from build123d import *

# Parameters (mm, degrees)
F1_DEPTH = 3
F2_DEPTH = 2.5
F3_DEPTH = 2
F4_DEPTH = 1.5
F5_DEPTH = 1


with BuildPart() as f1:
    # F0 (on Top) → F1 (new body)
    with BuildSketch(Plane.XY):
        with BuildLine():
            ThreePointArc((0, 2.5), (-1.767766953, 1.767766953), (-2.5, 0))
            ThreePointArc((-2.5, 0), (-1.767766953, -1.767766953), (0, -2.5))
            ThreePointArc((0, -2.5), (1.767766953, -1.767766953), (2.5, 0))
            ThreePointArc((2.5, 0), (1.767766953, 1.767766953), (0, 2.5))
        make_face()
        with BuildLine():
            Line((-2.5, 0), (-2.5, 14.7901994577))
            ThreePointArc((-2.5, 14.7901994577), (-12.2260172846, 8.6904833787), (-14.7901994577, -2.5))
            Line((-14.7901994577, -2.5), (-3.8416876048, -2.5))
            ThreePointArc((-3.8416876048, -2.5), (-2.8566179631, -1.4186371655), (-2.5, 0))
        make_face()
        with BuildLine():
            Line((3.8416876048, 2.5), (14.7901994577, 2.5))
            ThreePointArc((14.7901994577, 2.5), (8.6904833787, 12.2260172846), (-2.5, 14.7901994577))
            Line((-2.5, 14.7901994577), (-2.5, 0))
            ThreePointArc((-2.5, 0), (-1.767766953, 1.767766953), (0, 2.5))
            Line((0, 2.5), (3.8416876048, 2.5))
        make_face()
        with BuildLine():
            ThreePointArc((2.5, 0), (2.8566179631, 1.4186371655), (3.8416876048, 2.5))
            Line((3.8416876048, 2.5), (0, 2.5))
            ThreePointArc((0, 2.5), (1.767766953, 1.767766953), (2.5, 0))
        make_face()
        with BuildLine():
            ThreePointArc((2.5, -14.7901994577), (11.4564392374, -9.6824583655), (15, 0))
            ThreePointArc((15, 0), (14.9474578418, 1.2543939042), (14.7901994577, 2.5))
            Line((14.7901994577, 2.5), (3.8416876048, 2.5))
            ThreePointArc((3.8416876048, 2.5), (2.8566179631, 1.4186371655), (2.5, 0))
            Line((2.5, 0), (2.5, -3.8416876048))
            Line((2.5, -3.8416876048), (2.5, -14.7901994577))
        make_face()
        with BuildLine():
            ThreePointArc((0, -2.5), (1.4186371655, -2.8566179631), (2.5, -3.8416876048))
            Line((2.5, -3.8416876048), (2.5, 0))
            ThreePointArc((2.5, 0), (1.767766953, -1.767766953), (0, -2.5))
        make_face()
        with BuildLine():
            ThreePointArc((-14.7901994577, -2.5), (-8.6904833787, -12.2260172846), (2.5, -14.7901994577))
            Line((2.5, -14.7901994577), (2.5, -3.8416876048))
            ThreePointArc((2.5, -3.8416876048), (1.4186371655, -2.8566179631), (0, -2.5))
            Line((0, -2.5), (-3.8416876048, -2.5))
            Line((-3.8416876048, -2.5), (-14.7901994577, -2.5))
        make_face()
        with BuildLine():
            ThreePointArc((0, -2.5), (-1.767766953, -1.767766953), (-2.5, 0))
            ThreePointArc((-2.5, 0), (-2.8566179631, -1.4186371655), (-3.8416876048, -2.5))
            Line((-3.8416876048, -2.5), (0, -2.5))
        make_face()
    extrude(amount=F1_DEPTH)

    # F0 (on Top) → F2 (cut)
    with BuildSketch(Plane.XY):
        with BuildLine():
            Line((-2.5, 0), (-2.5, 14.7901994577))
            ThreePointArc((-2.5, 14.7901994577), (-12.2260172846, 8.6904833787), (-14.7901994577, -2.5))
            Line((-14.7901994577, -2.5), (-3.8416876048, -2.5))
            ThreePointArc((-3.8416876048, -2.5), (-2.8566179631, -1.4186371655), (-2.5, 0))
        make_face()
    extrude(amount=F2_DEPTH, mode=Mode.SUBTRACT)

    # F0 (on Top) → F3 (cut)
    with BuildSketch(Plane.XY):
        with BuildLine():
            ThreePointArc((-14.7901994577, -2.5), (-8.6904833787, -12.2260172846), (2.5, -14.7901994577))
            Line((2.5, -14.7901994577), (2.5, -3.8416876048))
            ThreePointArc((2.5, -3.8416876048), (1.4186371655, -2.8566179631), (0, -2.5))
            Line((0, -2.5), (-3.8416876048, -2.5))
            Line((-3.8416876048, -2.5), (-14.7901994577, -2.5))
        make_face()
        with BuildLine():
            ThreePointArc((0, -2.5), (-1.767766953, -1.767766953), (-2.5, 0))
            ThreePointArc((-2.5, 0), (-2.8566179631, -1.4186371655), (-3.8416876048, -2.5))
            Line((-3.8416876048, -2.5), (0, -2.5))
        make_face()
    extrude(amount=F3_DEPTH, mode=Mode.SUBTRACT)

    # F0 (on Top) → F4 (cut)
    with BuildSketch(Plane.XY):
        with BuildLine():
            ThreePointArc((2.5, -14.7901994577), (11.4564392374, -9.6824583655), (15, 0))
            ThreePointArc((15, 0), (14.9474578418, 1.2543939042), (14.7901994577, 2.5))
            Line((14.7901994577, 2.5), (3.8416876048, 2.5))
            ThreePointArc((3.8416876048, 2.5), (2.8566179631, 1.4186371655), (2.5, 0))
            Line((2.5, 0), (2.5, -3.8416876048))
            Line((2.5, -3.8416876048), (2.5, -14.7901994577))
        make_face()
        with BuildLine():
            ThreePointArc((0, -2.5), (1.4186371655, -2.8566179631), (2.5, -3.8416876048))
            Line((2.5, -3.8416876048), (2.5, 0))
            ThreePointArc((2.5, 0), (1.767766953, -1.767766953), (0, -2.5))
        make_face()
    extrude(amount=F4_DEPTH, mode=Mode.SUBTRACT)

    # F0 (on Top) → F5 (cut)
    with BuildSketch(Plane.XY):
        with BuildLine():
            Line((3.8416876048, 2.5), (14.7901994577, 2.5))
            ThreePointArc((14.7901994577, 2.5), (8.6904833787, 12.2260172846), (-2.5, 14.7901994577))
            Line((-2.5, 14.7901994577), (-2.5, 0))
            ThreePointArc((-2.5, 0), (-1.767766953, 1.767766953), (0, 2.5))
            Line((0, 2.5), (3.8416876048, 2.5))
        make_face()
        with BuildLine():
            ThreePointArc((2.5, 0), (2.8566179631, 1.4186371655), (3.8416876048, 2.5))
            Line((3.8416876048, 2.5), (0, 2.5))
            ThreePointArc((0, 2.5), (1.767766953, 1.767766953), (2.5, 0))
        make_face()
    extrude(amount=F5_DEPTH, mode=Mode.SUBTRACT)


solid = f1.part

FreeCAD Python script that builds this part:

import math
import FreeCAD as App
import Part
import Sketcher

doc = App.newDocument("Part")
body = doc.addObject("PartDesign::Body", "Body")

# Sketch on XY plane
sketch1 = doc.addObject("Sketcher::SketchObject", "Sketch")
body.addObject(sketch1)
sketch1.AttachmentSupport = (doc.XY_Plane, [""])
sketch1.MapMode = "FlatFace"
sketch1.addGeometry(Part.ArcOfCircle(Part.Circle(App.Vector(0, 0, 0), App.Vector(0, 0, 1), 15), math.radians(-80), math.radians(0)), False)
sketch1.addGeometry(Part.ArcOfCircle(Part.Circle(App.Vector(0, 0, 0), App.Vector(0, 0, 1), 15), math.radians(0), math.radians(9.59)), False)
sketch1.addGeometry(Part.ArcOfCircle(Part.Circle(App.Vector(0, 0, 0), App.Vector(0, 0, 1), 15), math.radians(10), math.radians(100)), False)
sketch1.addGeometry(Part.ArcOfCircle(Part.Circle(App.Vector(0, 0, 0), App.Vector(0, 0, 1), 15), math.radians(100), math.radians(190)), False)
sketch1.addGeometry(Part.ArcOfCircle(Part.Circle(App.Vector(0, 0, 0), App.Vector(0, 0, 1), 15), math.radians(-170), math.radians(-80)), False)
sketch1.addConstraint(Sketcher.Constraint("Tangent", 0, 2, 1, 1))
sketch1.addConstraint(Sketcher.Constraint("Tangent", 1, 2, 2, 1))
sketch1.addConstraint(Sketcher.Constraint("Tangent", 2, 2, 3, 1))
sketch1.addConstraint(Sketcher.Constraint("Tangent", 3, 2, 4, 1))
sketch1.addConstraint(Sketcher.Constraint("Tangent", 4, 2, 0, 1))
sketch1.addConstraint(Sketcher.Constraint("Coincident", 0, 3, -1, 1))
sketch1.addConstraint(Sketcher.Constraint("Coincident", 2, 3, -1, 1))
sketch1.addConstraint(Sketcher.Constraint("PointOnObject", 0, 2, -1))
sketch1.addConstraint(Sketcher.Constraint("Radius", 0, 15.0))
sketch1.addConstraint(Sketcher.Constraint("DistanceY", -1, 1, 1, 2, 2.5))
sketch1.addConstraint(Sketcher.Constraint("DistanceX", 2, 2, -1, 1, 2.5))
sketch1.addConstraint(Sketcher.Constraint("DistanceY", 3, 2, -1, 1, 2.5))
sketch1.addConstraint(Sketcher.Constraint("DistanceX", -1, 1, 4, 2, 2.5))
pad1 = doc.addObject("PartDesign::Pad", "Pad")
body.addObject(pad1)
pad1.Profile = sketch1
pad1.Length = 3

# Sketch on XY plane
sketch2 = doc.addObject("Sketcher::SketchObject", "Sketch001")
body.addObject(sketch2)
sketch2.AttachmentSupport = (doc.XY_Plane, [""])
sketch2.MapMode = "FlatFace"
sketch2.addGeometry(Part.LineSegment(App.Vector(-2.5, 0, 0), App.Vector(-2.5, 14.8, 0)), False)
sketch2.addGeometry(Part.ArcOfCircle(Part.Circle(App.Vector(0, 0, 0), App.Vector(0, 0, 1), 15), math.radians(100), math.radians(190)), False)
sketch2.addGeometry(Part.LineSegment(App.Vector(-14.8, -2.5, 0), App.Vector(-3.8, -2.5, 0)), False)
sketch2.addGeometry(Part.ArcOfCircle(Part.Circle(App.Vector(-5.5, 0, 0), App.Vector(0, 0, 1), 3), math.radians(-56), math.radians(0)), False)
sketch2.addConstraint(Sketcher.Constraint("Coincident", 0, 2, 1, 1))
sketch2.addConstraint(Sketcher.Constraint("Coincident", 1, 2, 2, 1))
sketch2.addConstraint(Sketcher.Constraint("Coincident", 2, 2, 3, 1))
sketch2.addConstraint(Sketcher.Constraint("Tangent", 3, 2, 0, 1))
sketch2.addConstraint(Sketcher.Constraint("Vertical", 0))
sketch2.addConstraint(Sketcher.Constraint("Horizontal", 2))
sketch2.addConstraint(Sketcher.Constraint("Coincident", 1, 3, -1, 1))
sketch2.addConstraint(Sketcher.Constraint("PointOnObject", 3, 3, -1))
sketch2.addConstraint(Sketcher.Constraint("Radius", 1, 15.0))
sketch2.addConstraint(Sketcher.Constraint("Radius", 3, 3.0))
sketch2.addConstraint(Sketcher.Constraint("DistanceX", 3, 3, -1, 1, 5.5))
sketch2.addConstraint(Sketcher.Constraint("DistanceY", 1, 2, -1, 1, 2.5))
pocket1 = doc.addObject("PartDesign::Pocket", "Pocket")
body.addObject(pocket1)
pocket1.Profile = sketch2
pocket1.Length = 2.5
pocket1.Reversed = True

# Sketch on XY plane
sketch3 = doc.addObject("Sketcher::SketchObject", "Sketch002")
body.addObject(sketch3)
sketch3.AttachmentSupport = (doc.XY_Plane, [""])
sketch3.MapMode = "FlatFace"
sketch3.addGeometry(Part.ArcOfCircle(Part.Circle(App.Vector(0, 0, 0), App.Vector(0, 0, 1), 15), math.radians(-170), math.radians(-80)), False)
sketch3.addGeometry(Part.LineSegment(App.Vector(2.5, -14.8, 0), App.Vector(2.5, -3.8, 0)), False)
sketch3.addGeometry(Part.ArcOfCircle(Part.Circle(App.Vector(0, -5.5, 0), App.Vector(0, 0, 1), 3), math.radians(34), math.radians(90)), False)
sketch3.addGeometry(Part.ArcOfCircle(Part.Circle(App.Vector(0, 0, 0), App.Vector(0, 0, 1), 2.5), math.radians(180), math.radians(270)), False)
sketch3.addGeometry(Part.ArcOfCircle(Part.Circle(App.Vector(-5.5, 0, 0), App.Vector(0, 0, 1), 3), math.radians(-56), math.radians(0)), False)
sketch3.addGeometry(Part.LineSegment(App.Vector(-3.8, -2.5, 0), App.Vector(-14.8, -2.5, 0)), False)
sketch3.addConstraint(Sketcher.Constraint("Coincident", 0, 2, 1, 1))
sketch3.addConstraint(Sketcher.Constraint("Coincident", 1, 2, 2, 1))
sketch3.addConstraint(Sketcher.Constraint("Tangent", 2, 2, 3, 2))
sketch3.addConstraint(Sketcher.Constraint("Tangent", 3, 1, 4, 2))
sketch3.addConstraint(Sketcher.Constraint("Coincident", 4, 1, 5, 1))
sketch3.addConstraint(Sketcher.Constraint("Coincident", 5, 2, 0, 1))
sketch3.addConstraint(Sketcher.Constraint("Vertical", 1))
sketch3.addConstraint(Sketcher.Constraint("Horizontal", 5))
sketch3.addConstraint(Sketcher.Constraint("Coincident", 0, 3, -1, 1))
sketch3.addConstraint(Sketcher.Constraint("Coincident", 3, 3, -1, 1))
sketch3.addConstraint(Sketcher.Constraint("Equal", 2, 4))
sketch3.addConstraint(Sketcher.Constraint("PointOnObject", 2, 3, -2))
sketch3.addConstraint(Sketcher.Constraint("PointOnObject", 4, 3, -1))
sketch3.addConstraint(Sketcher.Constraint("Horizontal", 2, 2, 4, 1))
sketch3.addConstraint(Sketcher.Constraint("Equal", 5, 1))
sketch3.addConstraint(Sketcher.Constraint("Radius", 0, 15.0))
sketch3.addConstraint(Sketcher.Constraint("Radius", 2, 3.0))
sketch3.addConstraint(Sketcher.Constraint("Radius", 3, 2.5))
pocket2 = doc.addObject("PartDesign::Pocket", "Pocket001")
body.addObject(pocket2)
pocket2.Profile = sketch3
pocket2.Length = 2
pocket2.Reversed = True

# Sketch on XY plane
sketch4 = doc.addObject("Sketcher::SketchObject", "Sketch003")
body.addObject(sketch4)
sketch4.AttachmentSupport = (doc.XY_Plane, [""])
sketch4.MapMode = "FlatFace"
sketch4.addGeometry(Part.ArcOfCircle(Part.Circle(App.Vector(0, 0, 0), App.Vector(0, 0, 1), 15), math.radians(-80), math.radians(0)), False)
sketch4.addGeometry(Part.ArcOfCircle(Part.Circle(App.Vector(0, 0, 0), App.Vector(0, 0, 1), 15), math.radians(0), math.radians(9.59)), False)
sketch4.addGeometry(Part.LineSegment(App.Vector(14.8, 2.5, 0), App.Vector(3.8, 2.5, 0)), False)
sketch4.addGeometry(Part.ArcOfCircle(Part.Circle(App.Vector(5.5, 0, 0), App.Vector(0, 0, 1), 3), math.radians(124), math.radians(180)), False)
sketch4.addGeometry(Part.ArcOfCircle(Part.Circle(App.Vector(0, 0, 0), App.Vector(0, 0, 1), 2.5), math.radians(-90), math.radians(0)), False)
sketch4.addGeometry(Part.ArcOfCircle(Part.Circle(App.Vector(0, -5.5, 0), App.Vector(0, 0, 1), 3), math.radians(34), math.radians(90)), False)
sketch4.addGeometry(Part.LineSegment(App.Vector(2.5, -3.8, 0), App.Vector(2.5, -14.8, 0)), False)
sketch4.addConstraint(Sketcher.Constraint("Tangent", 0, 2, 1, 1))
sketch4.addConstraint(Sketcher.Constraint("Coincident", 1, 2, 2, 1))
sketch4.addConstraint(Sketcher.Constraint("Coincident", 2, 2, 3, 1))
sketch4.addConstraint(Sketcher.Constraint("Tangent", 3, 2, 4, 2))
sketch4.addConstraint(Sketcher.Constraint("Tangent", 4, 1, 5, 2))
sketch4.addConstraint(Sketcher.Constraint("Coincident", 5, 1, 6, 1))
sketch4.addConstraint(Sketcher.Constraint("Coincident", 6, 2, 0, 1))
sketch4.addConstraint(Sketcher.Constraint("Horizontal", 2))
sketch4.addConstraint(Sketcher.Constraint("Vertical", 6))
sketch4.addConstraint(Sketcher.Constraint("Coincident", 0, 3, -1, 1))
sketch4.addConstraint(Sketcher.Constraint("Coincident", 4, 3, -1, 1))
sketch4.addConstraint(Sketcher.Constraint("Equal", 0, 1))
sketch4.addConstraint(Sketcher.Constraint("Equal", 3, 5))
sketch4.addConstraint(Sketcher.Constraint("PointOnObject", 3, 3, -1))
sketch4.addConstraint(Sketcher.Constraint("PointOnObject", 5, 3, -2))
sketch4.addConstraint(Sketcher.Constraint("PointOnObject", 0, 2, -1))
sketch4.addConstraint(Sketcher.Constraint("Vertical", 3, 2, 5, 1))
sketch4.addConstraint(Sketcher.Constraint("Equal", 2, 6))
sketch4.addConstraint(Sketcher.Constraint("Radius", 0, 15.0))
sketch4.addConstraint(Sketcher.Constraint("Radius", 3, 3.0))
sketch4.addConstraint(Sketcher.Constraint("Radius", 4, 2.5))
pocket3 = doc.addObject("PartDesign::Pocket", "Pocket002")
body.addObject(pocket3)
pocket3.Profile = sketch4
pocket3.Length = 1.5
pocket3.Reversed = True

# Sketch on XY plane
sketch5 = doc.addObject("Sketcher::SketchObject", "Sketch004")
body.addObject(sketch5)
sketch5.AttachmentSupport = (doc.XY_Plane, [""])
sketch5.MapMode = "FlatFace"
sketch5.addGeometry(Part.ArcOfCircle(Part.Circle(App.Vector(0, 0, 0), App.Vector(0, 0, 1), 15), math.radians(10), math.radians(100)), False)
sketch5.addGeometry(Part.LineSegment(App.Vector(-2.5, 14.8, 0), App.Vector(-2.5, 0, 0)), False)
sketch5.addGeometry(Part.ArcOfCircle(Part.Circle(App.Vector(0, 0, 0), App.Vector(0, 0, 1), 2.5), math.radians(90), math.radians(180)), False)
sketch5.addGeometry(Part.ArcOfCircle(Part.Circle(App.Vector(0, 0, 0), App.Vector(0, 0, 1), 2.5), math.radians(0), math.radians(90)), False)
sketch5.addGeometry(Part.ArcOfCircle(Part.Circle(App.Vector(5.5, 0, 0), App.Vector(0, 0, 1), 3), math.radians(124), math.radians(180)), False)
sketch5.addGeometry(Part.LineSegment(App.Vector(3.8, 2.5, 0), App.Vector(14.8, 2.5, 0)), False)
sketch5.addConstraint(Sketcher.Constraint("Coincident", 0, 2, 1, 1))
sketch5.addConstraint(Sketcher.Constraint("Tangent", 1, 2, 2, 2))
sketch5.addConstraint(Sketcher.Constraint("Tangent", 2, 1, 3, 2))
sketch5.addConstraint(Sketcher.Constraint("Tangent", 3, 1, 4, 2))
sketch5.addConstraint(Sketcher.Constraint("Coincident", 4, 1, 5, 1))
sketch5.addConstraint(Sketcher.Constraint("Coincident", 5, 2, 0, 1))
sketch5.addConstraint(Sketcher.Constraint("Vertical", 1))
sketch5.addConstraint(Sketcher.Constraint("Horizontal", 5))
sketch5.addConstraint(Sketcher.Constraint("Coincident", 0, 3, -1, 1))
sketch5.addConstraint(Sketcher.Constraint("Coincident", 2, 3, -1, 1))
sketch5.addConstraint(Sketcher.Constraint("Equal", 2, 3))
sketch5.addConstraint(Sketcher.Constraint("PointOnObject", 4, 3, -1))
sketch5.addConstraint(Sketcher.Constraint("PointOnObject", 2, 1, -2))
sketch5.addConstraint(Sketcher.Constraint("Horizontal", 2, 1, 4, 1))
sketch5.addConstraint(Sketcher.Constraint("Radius", 0, 15.0))
sketch5.addConstraint(Sketcher.Constraint("Radius", 4, 3.0))
sketch5.addConstraint(Sketcher.Constraint("Radius", 2, 2.5))
pocket4 = doc.addObject("PartDesign::Pocket", "Pocket003")
body.addObject(pocket4)
pocket4.Profile = sketch5
pocket4.Length = 1
pocket4.Reversed = True

doc.recompute()
